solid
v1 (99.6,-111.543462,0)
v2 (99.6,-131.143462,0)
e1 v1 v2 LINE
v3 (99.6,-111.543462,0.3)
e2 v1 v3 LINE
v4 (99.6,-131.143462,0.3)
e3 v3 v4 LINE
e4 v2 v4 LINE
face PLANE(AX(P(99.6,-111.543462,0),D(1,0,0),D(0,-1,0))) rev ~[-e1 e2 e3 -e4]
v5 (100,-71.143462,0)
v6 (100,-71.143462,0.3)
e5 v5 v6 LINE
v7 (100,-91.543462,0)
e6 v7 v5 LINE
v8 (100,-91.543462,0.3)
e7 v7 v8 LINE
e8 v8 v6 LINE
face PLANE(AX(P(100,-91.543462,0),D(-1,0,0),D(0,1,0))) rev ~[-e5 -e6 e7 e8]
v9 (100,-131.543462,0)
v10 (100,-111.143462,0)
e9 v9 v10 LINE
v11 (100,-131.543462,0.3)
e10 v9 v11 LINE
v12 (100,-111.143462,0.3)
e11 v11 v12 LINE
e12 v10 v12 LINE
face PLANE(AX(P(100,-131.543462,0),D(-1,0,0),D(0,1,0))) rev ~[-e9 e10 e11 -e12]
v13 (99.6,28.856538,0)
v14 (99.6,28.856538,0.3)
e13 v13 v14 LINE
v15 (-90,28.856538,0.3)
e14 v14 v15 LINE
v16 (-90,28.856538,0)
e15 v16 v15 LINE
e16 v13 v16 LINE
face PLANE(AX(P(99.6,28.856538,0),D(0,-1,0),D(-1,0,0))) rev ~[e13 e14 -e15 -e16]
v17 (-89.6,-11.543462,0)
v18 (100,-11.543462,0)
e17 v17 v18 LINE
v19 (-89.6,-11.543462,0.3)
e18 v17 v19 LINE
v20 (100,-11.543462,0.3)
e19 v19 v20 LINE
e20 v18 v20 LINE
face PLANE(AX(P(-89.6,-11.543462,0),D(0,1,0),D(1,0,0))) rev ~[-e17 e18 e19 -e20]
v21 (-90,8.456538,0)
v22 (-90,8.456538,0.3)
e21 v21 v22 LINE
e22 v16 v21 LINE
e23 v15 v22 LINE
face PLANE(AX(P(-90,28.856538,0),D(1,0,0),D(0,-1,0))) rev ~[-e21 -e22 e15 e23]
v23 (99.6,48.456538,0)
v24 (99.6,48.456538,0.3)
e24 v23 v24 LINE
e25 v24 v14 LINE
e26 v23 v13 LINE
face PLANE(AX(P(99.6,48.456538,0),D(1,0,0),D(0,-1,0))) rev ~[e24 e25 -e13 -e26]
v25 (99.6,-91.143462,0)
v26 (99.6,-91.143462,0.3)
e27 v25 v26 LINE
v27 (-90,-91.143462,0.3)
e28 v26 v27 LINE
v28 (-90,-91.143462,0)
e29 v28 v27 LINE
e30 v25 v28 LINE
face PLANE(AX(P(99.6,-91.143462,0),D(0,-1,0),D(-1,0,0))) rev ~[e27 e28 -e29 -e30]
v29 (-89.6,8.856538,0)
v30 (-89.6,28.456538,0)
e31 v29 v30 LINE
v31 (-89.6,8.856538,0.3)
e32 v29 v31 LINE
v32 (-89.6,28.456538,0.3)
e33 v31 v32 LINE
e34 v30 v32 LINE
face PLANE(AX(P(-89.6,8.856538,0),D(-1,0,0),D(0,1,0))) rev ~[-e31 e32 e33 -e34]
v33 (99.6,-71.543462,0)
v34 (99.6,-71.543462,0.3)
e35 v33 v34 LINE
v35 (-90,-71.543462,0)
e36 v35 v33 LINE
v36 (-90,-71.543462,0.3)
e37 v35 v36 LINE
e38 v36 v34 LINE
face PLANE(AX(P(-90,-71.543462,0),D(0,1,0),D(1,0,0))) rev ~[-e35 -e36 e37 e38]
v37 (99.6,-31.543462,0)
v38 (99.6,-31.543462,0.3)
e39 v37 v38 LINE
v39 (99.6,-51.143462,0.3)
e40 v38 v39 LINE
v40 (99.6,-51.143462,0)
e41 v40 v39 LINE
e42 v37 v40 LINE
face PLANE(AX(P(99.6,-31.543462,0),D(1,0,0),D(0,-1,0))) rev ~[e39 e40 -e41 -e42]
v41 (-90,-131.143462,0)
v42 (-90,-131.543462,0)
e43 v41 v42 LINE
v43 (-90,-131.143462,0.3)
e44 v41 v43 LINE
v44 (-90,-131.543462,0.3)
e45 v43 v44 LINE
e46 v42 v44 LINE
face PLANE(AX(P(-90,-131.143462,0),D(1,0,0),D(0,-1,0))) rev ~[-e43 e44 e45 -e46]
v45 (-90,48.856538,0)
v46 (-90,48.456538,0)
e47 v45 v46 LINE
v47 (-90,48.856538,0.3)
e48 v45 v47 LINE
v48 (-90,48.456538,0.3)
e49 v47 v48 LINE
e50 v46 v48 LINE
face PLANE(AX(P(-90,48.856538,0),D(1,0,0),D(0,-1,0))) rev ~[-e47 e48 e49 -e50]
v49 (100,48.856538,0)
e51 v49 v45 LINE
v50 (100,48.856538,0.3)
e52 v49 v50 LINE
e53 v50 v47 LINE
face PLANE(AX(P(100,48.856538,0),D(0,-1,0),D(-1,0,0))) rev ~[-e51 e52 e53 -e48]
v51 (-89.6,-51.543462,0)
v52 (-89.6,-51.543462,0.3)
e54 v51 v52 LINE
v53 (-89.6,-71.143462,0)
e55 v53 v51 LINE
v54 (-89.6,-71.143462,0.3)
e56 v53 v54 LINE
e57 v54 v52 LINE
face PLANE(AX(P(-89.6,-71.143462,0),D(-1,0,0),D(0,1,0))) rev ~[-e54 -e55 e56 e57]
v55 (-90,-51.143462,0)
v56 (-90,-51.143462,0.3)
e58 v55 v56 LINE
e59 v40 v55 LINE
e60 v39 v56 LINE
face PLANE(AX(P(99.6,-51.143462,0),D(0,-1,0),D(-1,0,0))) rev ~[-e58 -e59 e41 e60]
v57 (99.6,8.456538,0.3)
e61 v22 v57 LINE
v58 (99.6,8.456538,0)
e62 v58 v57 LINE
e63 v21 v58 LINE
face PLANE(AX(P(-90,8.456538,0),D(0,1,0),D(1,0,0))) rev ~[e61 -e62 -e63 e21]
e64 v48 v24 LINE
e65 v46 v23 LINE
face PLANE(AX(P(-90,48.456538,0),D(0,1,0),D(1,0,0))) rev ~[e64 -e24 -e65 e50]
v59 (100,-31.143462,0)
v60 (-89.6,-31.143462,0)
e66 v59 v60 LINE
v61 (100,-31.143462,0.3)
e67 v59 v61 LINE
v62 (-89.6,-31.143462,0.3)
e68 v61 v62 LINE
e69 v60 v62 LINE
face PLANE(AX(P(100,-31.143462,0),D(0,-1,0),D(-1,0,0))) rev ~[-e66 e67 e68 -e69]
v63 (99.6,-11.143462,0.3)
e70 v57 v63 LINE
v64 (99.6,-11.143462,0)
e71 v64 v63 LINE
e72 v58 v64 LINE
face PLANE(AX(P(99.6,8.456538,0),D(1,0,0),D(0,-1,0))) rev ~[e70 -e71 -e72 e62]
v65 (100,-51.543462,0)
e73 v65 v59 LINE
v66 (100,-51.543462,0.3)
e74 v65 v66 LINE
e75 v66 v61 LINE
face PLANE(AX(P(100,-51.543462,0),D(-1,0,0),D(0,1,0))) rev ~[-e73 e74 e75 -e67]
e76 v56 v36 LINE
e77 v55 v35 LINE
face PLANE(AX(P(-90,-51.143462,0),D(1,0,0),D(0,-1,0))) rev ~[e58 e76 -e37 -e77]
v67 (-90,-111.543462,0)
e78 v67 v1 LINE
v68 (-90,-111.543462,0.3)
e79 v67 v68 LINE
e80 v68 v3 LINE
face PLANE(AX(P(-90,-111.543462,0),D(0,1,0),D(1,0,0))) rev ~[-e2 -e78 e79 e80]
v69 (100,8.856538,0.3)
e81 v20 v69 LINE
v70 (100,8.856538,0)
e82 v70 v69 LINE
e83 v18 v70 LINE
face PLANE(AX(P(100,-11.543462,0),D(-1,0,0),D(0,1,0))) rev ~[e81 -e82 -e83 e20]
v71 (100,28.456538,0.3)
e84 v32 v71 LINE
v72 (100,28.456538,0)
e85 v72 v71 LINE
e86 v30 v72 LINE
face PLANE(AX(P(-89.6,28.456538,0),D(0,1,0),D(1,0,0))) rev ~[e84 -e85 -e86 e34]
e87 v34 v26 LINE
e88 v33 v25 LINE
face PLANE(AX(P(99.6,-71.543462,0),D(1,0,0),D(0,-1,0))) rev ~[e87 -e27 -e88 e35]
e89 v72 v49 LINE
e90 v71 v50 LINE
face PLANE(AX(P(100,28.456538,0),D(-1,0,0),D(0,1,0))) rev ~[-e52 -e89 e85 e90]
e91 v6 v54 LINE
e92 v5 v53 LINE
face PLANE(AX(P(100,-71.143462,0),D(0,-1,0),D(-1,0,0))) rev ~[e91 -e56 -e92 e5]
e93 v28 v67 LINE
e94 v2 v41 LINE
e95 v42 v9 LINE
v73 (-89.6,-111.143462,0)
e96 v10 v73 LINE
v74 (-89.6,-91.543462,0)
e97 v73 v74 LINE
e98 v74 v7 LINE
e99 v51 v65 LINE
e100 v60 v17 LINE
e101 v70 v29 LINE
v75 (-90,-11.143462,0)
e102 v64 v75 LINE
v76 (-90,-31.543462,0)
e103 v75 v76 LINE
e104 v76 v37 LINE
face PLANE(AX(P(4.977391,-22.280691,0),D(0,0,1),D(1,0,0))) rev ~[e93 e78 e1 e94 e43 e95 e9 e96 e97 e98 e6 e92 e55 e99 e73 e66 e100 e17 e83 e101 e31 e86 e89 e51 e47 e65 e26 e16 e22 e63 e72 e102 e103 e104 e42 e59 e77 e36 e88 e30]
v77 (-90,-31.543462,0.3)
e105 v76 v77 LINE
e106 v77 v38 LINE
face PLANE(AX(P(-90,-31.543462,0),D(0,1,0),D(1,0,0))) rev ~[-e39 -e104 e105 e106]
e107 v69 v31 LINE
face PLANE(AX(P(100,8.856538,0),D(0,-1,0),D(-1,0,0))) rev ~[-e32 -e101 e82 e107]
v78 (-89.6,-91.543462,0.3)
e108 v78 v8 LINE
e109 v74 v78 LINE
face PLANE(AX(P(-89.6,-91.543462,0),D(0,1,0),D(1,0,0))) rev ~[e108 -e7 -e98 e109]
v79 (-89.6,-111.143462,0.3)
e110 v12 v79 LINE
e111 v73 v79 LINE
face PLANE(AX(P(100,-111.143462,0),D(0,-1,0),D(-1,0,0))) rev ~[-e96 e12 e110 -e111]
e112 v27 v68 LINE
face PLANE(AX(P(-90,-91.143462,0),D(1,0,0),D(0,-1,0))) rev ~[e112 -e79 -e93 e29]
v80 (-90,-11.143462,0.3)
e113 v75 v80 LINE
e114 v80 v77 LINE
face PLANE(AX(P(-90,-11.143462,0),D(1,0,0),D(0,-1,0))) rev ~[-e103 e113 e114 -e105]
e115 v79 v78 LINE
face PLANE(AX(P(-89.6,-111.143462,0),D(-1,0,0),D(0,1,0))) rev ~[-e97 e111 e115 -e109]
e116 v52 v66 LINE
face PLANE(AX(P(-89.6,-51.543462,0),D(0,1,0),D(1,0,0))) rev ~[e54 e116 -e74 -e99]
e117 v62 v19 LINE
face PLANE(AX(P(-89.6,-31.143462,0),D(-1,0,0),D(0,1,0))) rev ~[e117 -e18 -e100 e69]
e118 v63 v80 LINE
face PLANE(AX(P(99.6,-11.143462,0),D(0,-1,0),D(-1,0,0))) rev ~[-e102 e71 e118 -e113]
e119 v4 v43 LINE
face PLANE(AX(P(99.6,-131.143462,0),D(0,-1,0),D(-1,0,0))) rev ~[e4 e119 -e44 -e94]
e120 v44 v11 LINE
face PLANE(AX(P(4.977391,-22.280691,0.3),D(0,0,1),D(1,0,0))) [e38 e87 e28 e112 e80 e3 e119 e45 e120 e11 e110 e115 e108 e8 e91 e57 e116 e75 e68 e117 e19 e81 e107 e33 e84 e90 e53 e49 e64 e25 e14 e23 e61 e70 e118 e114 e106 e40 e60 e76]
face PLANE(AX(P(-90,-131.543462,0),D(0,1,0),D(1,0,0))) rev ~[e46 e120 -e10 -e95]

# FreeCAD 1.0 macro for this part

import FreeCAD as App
import Part
import Sketcher


def add_polygon(sketch, points):
    """Adds a closed chain of lines whose ends are joined by coincident constraints."""
    first, n = sketch.GeometryCount, len(points)
    for a, b in zip(points, points[1:] + points[:1]):
        sketch.addGeometry(Part.LineSegment(App.Vector(*a, 0), App.Vector(*b, 0)), False)
    for i in range(n):
        sketch.addConstraint(Sketcher.Constraint("Coincident", first + i, 2, first + (i + 1) % n, 1))

doc = App.newDocument("Part")
params = doc.addObject("Spreadsheet::Sheet", "Params")
for row, (alias, value) in enumerate([
    ("sketch1_width", "190 mm"),
    ("sketch1_width2", "189.6 mm"),
    ("sketch1_height", "0.4 mm"),
    ("sketch1_height2", "19.6 mm"),
    ("pad1_length", "0.3 mm"),
], start=1):
    params.set(f"A{row}", alias)
    params.set(f"B{row}", "=" + value)
    params.setAlias(f"B{row}", alias)

body = doc.addObject("PartDesign::Body", "Body")

# Sketch on XY plane
sketch1 = doc.addObject("Sketcher::SketchObject", "Sketch")
body.addObject(sketch1)
sketch1.AttachmentSupport = (doc.XY_Plane, [""])
sketch1.MapMode = "FlatFace"
add_polygon(sketch1, [(100, 48.856538), (-90, 48.856538), (-90, 48.456538), (99.6, 48.456538), (99.6, 28.856538), (-90, 28.856538), (-90, 8.456538), (99.6, 8.456538), (99.6, -11.143462), (-90, -11.143462), (-90, -31.543462), (99.6, -31.543462), (99.6, -51.143462), (-90, -51.143462), (-90, -71.543462), (99.6, -71.543462), (99.6, -91.143462), (-90, -91.143462), (-90, -111.543462), (99.6, -111.543462), (99.6, -131.143462), (-90, -131.143462), (-90, -131.543462), (100, -131.543462), (100, -111.143462), (-89.6, -111.143462), (-89.6, -91.543462), (100, -91.543462), (100, -71.143462), (-89.6, -71.143462), (-89.6, -51.543462), (100, -51.543462), (100, -31.143462), (-89.6, -31.143462), (-89.6, -11.543462), (100, -11.543462), (100, 8.856538), (-89.6, 8.856538), (-89.6, 28.456538), (100, 28.456538)])  # lines 0-39
sketch1.addConstraint(Sketcher.Constraint("Horizontal", 0))
sketch1.addConstraint(Sketcher.Constraint("Vertical", 1))
sketch1.addConstraint(Sketcher.Constraint("Horizontal", 2))
sketch1.addConstraint(Sketcher.Constraint("Vertical", 3))
sketch1.addConstraint(Sketcher.Constraint("Horizontal", 4))
sketch1.addConstraint(Sketcher.Constraint("Vertical", 5))
sketch1.addConstraint(Sketcher.Constraint("Horizontal", 6))
sketch1.addConstraint(Sketcher.Constraint("Vertical", 7))
sketch1.addConstraint(Sketcher.Constraint("Horizontal", 8))
sketch1.addConstraint(Sketcher.Constraint("Vertical", 9))
sketch1.addConstraint(Sketcher.Constraint("Horizontal", 10))
sketch1.addConstraint(Sketcher.Constraint("Vertical", 11))
sketch1.addConstraint(Sketcher.Constraint("Horizontal", 12))
sketch1.addConstraint(Sketcher.Constraint("Vertical", 13))
sketch1.addConstraint(Sketcher.Constraint("Horizontal", 14))
sketch1.addConstraint(Sketcher.Constraint("Vertical", 15))
sketch1.addConstraint(Sketcher.Constraint("Horizontal", 16))
sketch1.addConstraint(Sketcher.Constraint("Vertical", 17))
sketch1.addConstraint(Sketcher.Constraint("Horizontal", 18))
sketch1.addConstraint(Sketcher.Constraint("Vertical", 19))
sketch1.addConstraint(Sketcher.Constraint("Horizontal", 20))
sketch1.addConstraint(Sketcher.Constraint("Vertical", 21))
sketch1.addConstraint(Sketcher.Constraint("Horizontal", 22))
sketch1.addConstraint(Sketcher.Constraint("Vertical", 23))
sketch1.addConstraint(Sketcher.Constraint("Horizontal", 24))
sketch1.addConstraint(Sketcher.Constraint("Vertical", 25))
sketch1.addConstraint(Sketcher.Constraint("Horizontal", 26))
sketch1.addConstraint(Sketcher.Constraint("Vertical", 27))
sketch1.addConstraint(Sketcher.Constraint("Horizontal", 28))
sketch1.addConstraint(Sketcher.Constraint("Vertical", 29))
sketch1.addConstraint(Sketcher.Constraint("Horizontal", 30))
sketch1.addConstraint(Sketcher.Constraint("Vertical", 31))
sketch1.addConstraint(Sketcher.Constraint("Horizontal", 32))
sketch1.addConstraint(Sketcher.Constraint("Vertical", 33))
sketch1.addConstraint(Sketcher.Constraint("Horizontal", 34))
sketch1.addConstraint(Sketcher.Constraint("Vertical", 35))
sketch1.addConstraint(Sketcher.Constraint("Horizontal", 36))
sketch1.addConstraint(Sketcher.Constraint("Vertical", 37))
sketch1.addConstraint(Sketcher.Constraint("Horizontal", 38))
sketch1.addConstraint(Sketcher.Constraint("Vertical", 39))
sketch1.addConstraint(Sketcher.Constraint("Vertical", 1, 2, 4, 2))
sketch1.addConstraint(Sketcher.Constraint("Vertical", 3, 2, 6, 2))
sketch1.addConstraint(Sketcher.Constraint("Vertical", 5, 2, 8, 2))
sketch1.addConstraint(Sketcher.Constraint("Vertical", 7, 2, 10, 2))
sketch1.addConstraint(Sketcher.Constraint("Vertical", 9, 2, 12, 2))
sketch1.addConstraint(Sketcher.Constraint("Vertical", 11, 2, 14, 2))
sketch1.addConstraint(Sketcher.Constraint("Vertical", 13, 2, 16, 2))
sketch1.addConstraint(Sketcher.Constraint("Vertical", 15, 2, 18, 2))
sketch1.addConstraint(Sketcher.Constraint("Vertical", 17, 2, 20, 2))
sketch1.addConstraint(Sketcher.Constraint("Vertical", 23, 2, 26, 2))
sketch1.addConstraint(Sketcher.Constraint("Vertical", 25, 2, 28, 2))
sketch1.addConstraint(Sketcher.Constraint("Vertical", 27, 2, 30, 2))
sketch1.addConstraint(Sketcher.Constraint("Vertical", 29, 2, 32, 2))
sketch1.addConstraint(Sketcher.Constraint("Vertical", 31, 2, 34, 2))
sketch1.addConstraint(Sketcher.Constraint("Vertical", 33, 2, 36, 2))
sketch1.addConstraint(Sketcher.Constraint("Vertical", 35, 2, 38, 2))
sketch1.addConstraint(Sketcher.Constraint("Equal", 20, 24))
sketch1.addConstraint(Sketcher.Constraint("Equal", 3, 7))
sketch1.addConstraint(Sketcher.Constraint("Equal", 5, 9))
sketch1.addConstraint(Sketcher.Constraint("Equal", 7, 11))
sketch1.addConstraint(Sketcher.Constraint("Equal", 9, 13))
sketch1.addConstraint(Sketcher.Constraint("Equal", 11, 15))
sketch1.addConstraint(Sketcher.Constraint("Equal", 13, 17))
sketch1.addConstraint(Sketcher.Constraint("Equal", 15, 19))
sketch1.addConstraint(Sketcher.Constraint("Equal", 1, 21))
sketch1.addConstraint(Sketcher.Constraint("Equal", 17, 23))
sketch1.addConstraint(Sketcher.Constraint("Equal", 19, 25))
sketch1.addConstraint(Sketcher.Constraint("Equal", 23, 27))
sketch1.addConstraint(Sketcher.Constraint("Equal", 25, 29))
sketch1.addConstraint(Sketcher.Constraint("Equal", 27, 31))
sketch1.addConstraint(Sketcher.Constraint("Equal", 29, 33))
sketch1.addConstraint(Sketcher.Constraint("Equal", 31, 35))
sketch1.addConstraint(Sketcher.Constraint("Equal", 33, 37))
sketch1.addConstraint(Sketcher.Constraint("Equal", 35, 39))
sketch1.addConstraint(Sketcher.Constraint("DistanceX", 0, 2, 0, 1, 190.0))
sketch1.addConstraint(Sketcher.Constraint("DistanceX", 2, 1, 2, 2, 189.6))
sketch1.addConstraint(Sketcher.Constraint("DistanceY", 1, 2, 1, 1, 0.4))
sketch1.addConstraint(Sketcher.Constraint("DistanceY", 3, 2, 3, 1, 19.6))
sketch1.addConstraint(Sketcher.Constraint("DistanceX", 0, 2, -1, 1, 90.0))
sketch1.addConstraint(Sketcher.Constraint("DistanceY", -1, 1, 1, 2, 48.456538))
sketch1.setExpression("Constraints[114]", "Params.sketch1_width")
sketch1.setExpression("Constraints[115]", "Params.sketch1_width2")
sketch1.setExpression("Constraints[116]", "Params.sketch1_height")
sketch1.setExpression("Constraints[117]", "Params.sketch1_height2")
pad1 = doc.addObject("PartDesign::Pad", "Pad")
body.addObject(pad1)
pad1.Profile = sketch1
pad1.setExpression("Length", "Params.pad1_length")

doc.recompute()
